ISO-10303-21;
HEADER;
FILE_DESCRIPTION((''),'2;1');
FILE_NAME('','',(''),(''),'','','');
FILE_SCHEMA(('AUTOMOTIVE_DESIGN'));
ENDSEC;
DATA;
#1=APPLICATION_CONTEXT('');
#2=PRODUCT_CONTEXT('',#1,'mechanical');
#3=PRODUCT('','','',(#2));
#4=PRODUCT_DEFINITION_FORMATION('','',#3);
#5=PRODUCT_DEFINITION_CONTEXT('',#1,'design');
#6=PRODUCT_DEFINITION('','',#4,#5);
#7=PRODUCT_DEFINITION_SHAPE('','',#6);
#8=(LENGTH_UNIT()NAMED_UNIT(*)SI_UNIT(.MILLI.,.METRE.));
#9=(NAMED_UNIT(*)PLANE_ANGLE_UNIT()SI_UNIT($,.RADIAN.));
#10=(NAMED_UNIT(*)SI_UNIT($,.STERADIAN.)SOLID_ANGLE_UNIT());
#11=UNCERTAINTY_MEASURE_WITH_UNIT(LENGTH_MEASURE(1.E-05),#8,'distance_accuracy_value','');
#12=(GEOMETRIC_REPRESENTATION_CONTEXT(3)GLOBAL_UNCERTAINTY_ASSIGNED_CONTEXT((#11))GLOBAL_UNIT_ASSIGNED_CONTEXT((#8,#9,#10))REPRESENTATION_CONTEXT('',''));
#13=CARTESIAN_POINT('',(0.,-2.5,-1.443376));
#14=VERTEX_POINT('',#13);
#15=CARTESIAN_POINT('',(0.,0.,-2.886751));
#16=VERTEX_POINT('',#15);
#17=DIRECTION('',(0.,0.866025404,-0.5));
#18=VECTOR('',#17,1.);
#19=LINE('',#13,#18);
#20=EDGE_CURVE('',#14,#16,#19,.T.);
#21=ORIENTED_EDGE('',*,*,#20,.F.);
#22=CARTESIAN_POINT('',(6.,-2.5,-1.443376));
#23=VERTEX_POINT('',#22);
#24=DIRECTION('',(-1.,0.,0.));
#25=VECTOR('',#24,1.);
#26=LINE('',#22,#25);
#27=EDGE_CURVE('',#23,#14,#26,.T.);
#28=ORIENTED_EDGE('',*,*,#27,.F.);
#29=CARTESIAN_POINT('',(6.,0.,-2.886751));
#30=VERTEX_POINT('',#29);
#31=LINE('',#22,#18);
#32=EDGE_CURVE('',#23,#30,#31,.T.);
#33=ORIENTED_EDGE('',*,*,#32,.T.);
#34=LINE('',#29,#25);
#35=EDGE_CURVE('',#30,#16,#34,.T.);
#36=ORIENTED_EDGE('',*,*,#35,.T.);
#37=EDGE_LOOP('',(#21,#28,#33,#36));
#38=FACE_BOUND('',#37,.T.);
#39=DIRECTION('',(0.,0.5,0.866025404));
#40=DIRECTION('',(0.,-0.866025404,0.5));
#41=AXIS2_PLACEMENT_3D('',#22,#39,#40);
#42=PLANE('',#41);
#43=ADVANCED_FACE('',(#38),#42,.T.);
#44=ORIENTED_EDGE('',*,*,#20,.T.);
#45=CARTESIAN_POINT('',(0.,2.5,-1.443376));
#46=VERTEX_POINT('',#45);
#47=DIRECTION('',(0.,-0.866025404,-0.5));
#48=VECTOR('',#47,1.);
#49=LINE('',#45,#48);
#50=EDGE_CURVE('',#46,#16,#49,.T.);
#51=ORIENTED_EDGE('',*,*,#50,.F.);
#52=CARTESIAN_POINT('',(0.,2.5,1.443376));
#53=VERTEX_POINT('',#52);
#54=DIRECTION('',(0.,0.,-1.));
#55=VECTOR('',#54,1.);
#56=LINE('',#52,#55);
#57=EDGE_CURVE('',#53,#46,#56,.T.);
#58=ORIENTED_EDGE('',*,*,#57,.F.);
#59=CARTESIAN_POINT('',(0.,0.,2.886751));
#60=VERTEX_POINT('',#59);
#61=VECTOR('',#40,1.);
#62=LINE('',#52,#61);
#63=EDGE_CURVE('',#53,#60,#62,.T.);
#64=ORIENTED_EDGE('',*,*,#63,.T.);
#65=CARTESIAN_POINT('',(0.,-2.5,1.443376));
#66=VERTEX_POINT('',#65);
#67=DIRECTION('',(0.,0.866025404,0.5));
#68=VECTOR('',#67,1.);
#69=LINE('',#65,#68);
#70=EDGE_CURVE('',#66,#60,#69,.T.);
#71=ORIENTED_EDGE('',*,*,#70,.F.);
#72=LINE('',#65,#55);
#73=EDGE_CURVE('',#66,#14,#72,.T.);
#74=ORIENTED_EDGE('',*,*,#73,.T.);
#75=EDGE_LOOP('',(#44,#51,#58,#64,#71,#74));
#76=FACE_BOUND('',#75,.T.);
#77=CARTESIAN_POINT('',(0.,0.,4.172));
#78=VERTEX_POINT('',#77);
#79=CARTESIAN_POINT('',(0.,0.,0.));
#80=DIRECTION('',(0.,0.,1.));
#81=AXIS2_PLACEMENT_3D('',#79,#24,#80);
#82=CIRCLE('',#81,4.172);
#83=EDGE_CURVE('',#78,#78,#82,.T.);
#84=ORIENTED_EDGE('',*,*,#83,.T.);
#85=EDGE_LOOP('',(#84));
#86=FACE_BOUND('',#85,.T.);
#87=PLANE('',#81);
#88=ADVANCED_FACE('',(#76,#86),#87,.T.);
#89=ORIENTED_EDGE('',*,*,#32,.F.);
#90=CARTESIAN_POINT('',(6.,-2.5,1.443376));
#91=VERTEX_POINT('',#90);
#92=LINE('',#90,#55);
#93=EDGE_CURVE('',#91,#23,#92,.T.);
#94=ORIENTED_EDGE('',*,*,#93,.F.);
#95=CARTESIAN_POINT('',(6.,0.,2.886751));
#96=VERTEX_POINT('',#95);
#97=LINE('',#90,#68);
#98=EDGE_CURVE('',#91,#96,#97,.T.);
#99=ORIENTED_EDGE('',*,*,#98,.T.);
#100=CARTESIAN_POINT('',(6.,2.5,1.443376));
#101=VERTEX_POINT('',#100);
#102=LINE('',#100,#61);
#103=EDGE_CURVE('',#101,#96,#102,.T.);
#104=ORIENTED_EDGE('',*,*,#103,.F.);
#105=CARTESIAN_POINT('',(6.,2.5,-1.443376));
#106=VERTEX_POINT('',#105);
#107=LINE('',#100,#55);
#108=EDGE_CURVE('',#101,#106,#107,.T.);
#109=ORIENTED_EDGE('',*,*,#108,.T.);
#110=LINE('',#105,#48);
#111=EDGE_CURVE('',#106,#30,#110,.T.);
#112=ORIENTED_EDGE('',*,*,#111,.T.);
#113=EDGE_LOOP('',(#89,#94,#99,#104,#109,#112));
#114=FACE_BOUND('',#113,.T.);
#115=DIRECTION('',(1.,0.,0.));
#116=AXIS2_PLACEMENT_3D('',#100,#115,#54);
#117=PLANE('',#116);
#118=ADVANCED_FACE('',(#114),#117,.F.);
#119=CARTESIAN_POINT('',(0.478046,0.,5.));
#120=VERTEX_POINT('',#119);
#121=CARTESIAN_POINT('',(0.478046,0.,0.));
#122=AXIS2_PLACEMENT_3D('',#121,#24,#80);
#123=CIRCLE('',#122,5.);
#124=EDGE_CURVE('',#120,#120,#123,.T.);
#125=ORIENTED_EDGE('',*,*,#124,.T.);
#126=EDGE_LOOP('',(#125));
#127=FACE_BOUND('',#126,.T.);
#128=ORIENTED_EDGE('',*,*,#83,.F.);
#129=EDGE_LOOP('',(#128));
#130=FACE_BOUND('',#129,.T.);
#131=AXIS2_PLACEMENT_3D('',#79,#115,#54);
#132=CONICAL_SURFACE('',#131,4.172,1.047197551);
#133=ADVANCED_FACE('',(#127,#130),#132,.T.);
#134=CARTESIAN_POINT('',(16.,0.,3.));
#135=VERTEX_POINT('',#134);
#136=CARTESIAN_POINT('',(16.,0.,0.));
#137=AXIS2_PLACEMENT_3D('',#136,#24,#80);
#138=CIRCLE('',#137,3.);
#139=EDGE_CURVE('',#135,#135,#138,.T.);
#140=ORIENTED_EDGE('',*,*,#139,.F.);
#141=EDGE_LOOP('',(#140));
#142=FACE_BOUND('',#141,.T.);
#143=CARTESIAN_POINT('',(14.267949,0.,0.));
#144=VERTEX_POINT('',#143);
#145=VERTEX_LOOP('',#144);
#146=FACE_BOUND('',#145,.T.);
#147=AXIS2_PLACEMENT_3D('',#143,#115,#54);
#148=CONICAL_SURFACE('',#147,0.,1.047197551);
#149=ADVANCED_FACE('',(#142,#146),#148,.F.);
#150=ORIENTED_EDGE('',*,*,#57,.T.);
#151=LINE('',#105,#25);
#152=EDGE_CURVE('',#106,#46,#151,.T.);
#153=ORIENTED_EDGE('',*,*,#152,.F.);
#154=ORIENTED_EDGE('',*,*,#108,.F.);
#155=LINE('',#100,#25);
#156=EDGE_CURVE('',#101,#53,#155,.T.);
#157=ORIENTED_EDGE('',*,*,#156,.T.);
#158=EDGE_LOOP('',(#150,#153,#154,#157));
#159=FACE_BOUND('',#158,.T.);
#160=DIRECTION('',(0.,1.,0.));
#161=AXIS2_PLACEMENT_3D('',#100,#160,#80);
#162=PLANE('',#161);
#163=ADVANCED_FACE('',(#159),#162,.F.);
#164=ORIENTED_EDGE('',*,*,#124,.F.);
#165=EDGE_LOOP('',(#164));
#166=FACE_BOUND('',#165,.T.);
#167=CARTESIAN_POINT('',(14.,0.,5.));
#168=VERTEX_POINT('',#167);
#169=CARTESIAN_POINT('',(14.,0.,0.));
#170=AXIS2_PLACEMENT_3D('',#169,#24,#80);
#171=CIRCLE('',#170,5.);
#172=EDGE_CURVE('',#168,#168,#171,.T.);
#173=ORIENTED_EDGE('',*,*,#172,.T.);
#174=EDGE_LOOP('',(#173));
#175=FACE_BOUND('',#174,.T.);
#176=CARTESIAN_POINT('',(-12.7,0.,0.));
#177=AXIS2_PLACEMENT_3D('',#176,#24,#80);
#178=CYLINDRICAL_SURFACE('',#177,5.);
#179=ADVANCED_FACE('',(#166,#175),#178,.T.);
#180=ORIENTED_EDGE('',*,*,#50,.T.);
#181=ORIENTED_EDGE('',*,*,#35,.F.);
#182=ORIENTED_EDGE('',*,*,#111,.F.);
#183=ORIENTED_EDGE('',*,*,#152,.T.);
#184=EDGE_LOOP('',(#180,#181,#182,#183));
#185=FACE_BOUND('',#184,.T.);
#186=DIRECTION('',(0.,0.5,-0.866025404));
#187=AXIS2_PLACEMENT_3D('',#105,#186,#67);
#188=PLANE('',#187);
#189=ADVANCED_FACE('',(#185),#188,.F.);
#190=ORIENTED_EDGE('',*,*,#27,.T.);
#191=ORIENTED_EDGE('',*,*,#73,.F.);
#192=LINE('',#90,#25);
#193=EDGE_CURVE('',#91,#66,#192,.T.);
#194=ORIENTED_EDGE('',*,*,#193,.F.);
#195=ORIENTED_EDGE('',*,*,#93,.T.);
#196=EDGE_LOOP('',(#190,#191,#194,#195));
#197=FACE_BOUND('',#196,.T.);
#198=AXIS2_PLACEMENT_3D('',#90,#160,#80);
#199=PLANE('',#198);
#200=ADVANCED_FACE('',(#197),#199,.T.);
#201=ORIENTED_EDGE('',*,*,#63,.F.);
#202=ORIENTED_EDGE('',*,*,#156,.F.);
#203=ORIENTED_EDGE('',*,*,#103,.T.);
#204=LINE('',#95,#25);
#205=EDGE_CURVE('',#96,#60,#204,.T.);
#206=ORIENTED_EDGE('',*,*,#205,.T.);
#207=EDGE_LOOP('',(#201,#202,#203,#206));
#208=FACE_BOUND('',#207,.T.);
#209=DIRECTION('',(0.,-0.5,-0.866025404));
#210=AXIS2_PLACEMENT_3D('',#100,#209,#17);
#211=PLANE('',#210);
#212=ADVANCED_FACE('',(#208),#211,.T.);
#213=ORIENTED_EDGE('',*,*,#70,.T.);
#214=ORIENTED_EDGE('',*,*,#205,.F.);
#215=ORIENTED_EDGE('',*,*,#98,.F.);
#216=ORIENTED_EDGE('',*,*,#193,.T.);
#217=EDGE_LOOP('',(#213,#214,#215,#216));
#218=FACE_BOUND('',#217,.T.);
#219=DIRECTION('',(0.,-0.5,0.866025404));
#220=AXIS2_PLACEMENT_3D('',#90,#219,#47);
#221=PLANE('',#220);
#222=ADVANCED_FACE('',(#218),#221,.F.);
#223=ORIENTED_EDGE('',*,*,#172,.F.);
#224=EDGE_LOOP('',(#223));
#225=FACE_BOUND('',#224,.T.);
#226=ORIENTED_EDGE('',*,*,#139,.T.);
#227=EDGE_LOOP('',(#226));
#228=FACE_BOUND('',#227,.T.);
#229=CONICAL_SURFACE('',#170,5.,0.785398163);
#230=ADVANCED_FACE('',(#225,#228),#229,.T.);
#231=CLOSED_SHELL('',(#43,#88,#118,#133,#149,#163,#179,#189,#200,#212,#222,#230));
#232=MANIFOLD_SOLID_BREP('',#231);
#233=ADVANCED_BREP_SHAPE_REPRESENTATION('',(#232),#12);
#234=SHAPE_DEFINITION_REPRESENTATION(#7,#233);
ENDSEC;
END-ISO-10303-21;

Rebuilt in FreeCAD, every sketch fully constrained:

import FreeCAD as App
import Part
import Sketcher
from FreeCAD import Vector
Q = App.Units.Quantity

doc = App.newDocument("Part")
params = doc.addObject("Spreadsheet::Sheet", "Params")
for row, (alias, value) in enumerate([
    ("revolution_angle", "360 deg"),
    ("pocket1_length", "6 mm"),
], start=1):
    params.set(f"A{row}", alias)
    params.set(f"B{row}", "=" + value)
    params.setAlias(f"B{row}", alias)

body = doc.addObject("PartDesign::Body", "Body")

sketch1 = body.newObject("Sketcher::SketchObject", "Sketch")
sketch1.AttachmentSupport = (doc.getObject("XY_Plane"), [""])
sketch1.MapMode = "FlatFace"
sketch1.addGeometry(Part.LineSegment(Vector(0, 4.2, 0), Vector(0, 0, 0)), False)
sketch1.addGeometry(Part.LineSegment(Vector(0, 0, 0), Vector(14.3, 0, 0)), False)
sketch1.addGeometry(Part.LineSegment(Vector(14.3, 0, 0), Vector(16, 3, 0)), False)
sketch1.addGeometry(Part.LineSegment(Vector(16, 3, 0), Vector(14, 5, 0)), False)
sketch1.addGeometry(Part.LineSegment(Vector(14, 5, 0), Vector(0.5, 5, 0)), False)
sketch1.addGeometry(Part.LineSegment(Vector(0.5, 5, 0), Vector(0, 4.2, 0)), False)
sketch1.addConstraint(Sketcher.Constraint("Coincident", 0, 2, 1, 1))
sketch1.addConstraint(Sketcher.Constraint("Coincident", 1, 2, 2, 1))
sketch1.addConstraint(Sketcher.Constraint("Coincident", 2, 2, 3, 1))
sketch1.addConstraint(Sketcher.Constraint("Coincident", 3, 2, 4, 1))
sketch1.addConstraint(Sketcher.Constraint("Coincident", 4, 2, 5, 1))
sketch1.addConstraint(Sketcher.Constraint("Coincident", 5, 2, 0, 1))
sketch1.addConstraint(Sketcher.Constraint("Vertical", 0))
sketch1.addConstraint(Sketcher.Constraint("Horizontal", 1))
sketch1.addConstraint(Sketcher.Constraint("Horizontal", 4))
sketch1.addConstraint(Sketcher.Constraint("Coincident", 0, 2, -1, 1))
sketch1.addConstraint(Sketcher.Constraint("Parallel", 2, 5))
sketch1.addConstraint(Sketcher.Constraint("Angle", 2, Q("60 deg")))
sketch1.addConstraint(Sketcher.Constraint("Angle", 3, Q("135 deg")))
sketch1.addConstraint(Sketcher.Constraint("DistanceX", -1, 1, 2, 2, 16.0))
sketch1.addConstraint(Sketcher.Constraint("DistanceY", -1, 1, 2, 2, 3.0))
sketch1.addConstraint(Sketcher.Constraint("DistanceX", -1, 1, 3, 2, 14.0))
sketch1.addConstraint(Sketcher.Constraint("DistanceY", 0, 2, 0, 1, 4.172))
revolution = body.newObject("PartDesign::Revolution", "Revolution")
revolution.Profile = sketch1
revolution.ReferenceAxis = (sketch1, ["H_Axis"])
revolution.setExpression("Angle", "Params.revolution_angle")

sketch2 = body.newObject("Sketcher::SketchObject", "Sketch001")
sketch2.AttachmentSupport = (doc.getObject("YZ_Plane"), [""])
sketch2.MapMode = "FlatFace"
sketch2.addGeometry(Part.LineSegment(Vector(2.5, 1.4, 0), Vector(2.5, -1.4, 0)), False)
sketch2.addGeometry(Part.LineSegment(Vector(2.5, -1.4, 0), Vector(0, -2.9, 0)), False)
sketch2.addGeometry(Part.LineSegment(Vector(0, -2.9, 0), Vector(-2.5, -1.4, 0)), False)
sketch2.addGeometry(Part.LineSegment(Vector(-2.5, -1.4, 0), Vector(-2.5, 1.4, 0)), False)
sketch2.addGeometry(Part.LineSegment(Vector(-2.5, 1.4, 0), Vector(0, 2.9, 0)), False)
sketch2.addGeometry(Part.LineSegment(Vector(0, 2.9, 0), Vector(2.5, 1.4, 0)), False)
sketch2.addConstraint(Sketcher.Constraint("Coincident", 0, 2, 1, 1))
sketch2.addConstraint(Sketcher.Constraint("Coincident", 1, 2, 2, 1))
sketch2.addConstraint(Sketcher.Constraint("Coincident", 2, 2, 3, 1))
sketch2.addConstraint(Sketcher.Constraint("Coincident", 3, 2, 4, 1))
sketch2.addConstraint(Sketcher.Constraint("Coincident", 4, 2, 5, 1))
sketch2.addConstraint(Sketcher.Constraint("Coincident", 5, 2, 0, 1))
sketch2.addConstraint(Sketcher.Constraint("Vertical", 0))
sketch2.addConstraint(Sketcher.Constraint("Vertical", 3))
sketch2.addConstraint(Sketcher.Constraint("Symmetric", 0, 2, 3, 2, -1, 1))
sketch2.addConstraint(Sketcher.Constraint("Symmetric", 1, 2, 4, 2, -1, 1))
sketch2.addConstraint(Sketcher.Constraint("PointOnObject", 1, 2, -2))
sketch2.addConstraint(Sketcher.Constraint("Parallel", 2, 5))
sketch2.addConstraint(Sketcher.Constraint("Horizontal", 0, 2, 2, 2))
sketch2.addConstraint(Sketcher.Constraint("Angle", 1, Q("-150 deg")))
sketch2.addConstraint(Sketcher.Constraint("DistanceX", 2, 2, 0, 2, 5.0))
sketch2.addConstraint(Sketcher.Constraint("DistanceY", 0, 2, 0, 1, 2.886751))
pocket1 = body.newObject("PartDesign::Pocket", "Pocket")
pocket1.Profile = sketch2
pocket1.setExpression("Length", "Params.pocket1_length")
pocket1.Reversed = True

doc.recompute()
